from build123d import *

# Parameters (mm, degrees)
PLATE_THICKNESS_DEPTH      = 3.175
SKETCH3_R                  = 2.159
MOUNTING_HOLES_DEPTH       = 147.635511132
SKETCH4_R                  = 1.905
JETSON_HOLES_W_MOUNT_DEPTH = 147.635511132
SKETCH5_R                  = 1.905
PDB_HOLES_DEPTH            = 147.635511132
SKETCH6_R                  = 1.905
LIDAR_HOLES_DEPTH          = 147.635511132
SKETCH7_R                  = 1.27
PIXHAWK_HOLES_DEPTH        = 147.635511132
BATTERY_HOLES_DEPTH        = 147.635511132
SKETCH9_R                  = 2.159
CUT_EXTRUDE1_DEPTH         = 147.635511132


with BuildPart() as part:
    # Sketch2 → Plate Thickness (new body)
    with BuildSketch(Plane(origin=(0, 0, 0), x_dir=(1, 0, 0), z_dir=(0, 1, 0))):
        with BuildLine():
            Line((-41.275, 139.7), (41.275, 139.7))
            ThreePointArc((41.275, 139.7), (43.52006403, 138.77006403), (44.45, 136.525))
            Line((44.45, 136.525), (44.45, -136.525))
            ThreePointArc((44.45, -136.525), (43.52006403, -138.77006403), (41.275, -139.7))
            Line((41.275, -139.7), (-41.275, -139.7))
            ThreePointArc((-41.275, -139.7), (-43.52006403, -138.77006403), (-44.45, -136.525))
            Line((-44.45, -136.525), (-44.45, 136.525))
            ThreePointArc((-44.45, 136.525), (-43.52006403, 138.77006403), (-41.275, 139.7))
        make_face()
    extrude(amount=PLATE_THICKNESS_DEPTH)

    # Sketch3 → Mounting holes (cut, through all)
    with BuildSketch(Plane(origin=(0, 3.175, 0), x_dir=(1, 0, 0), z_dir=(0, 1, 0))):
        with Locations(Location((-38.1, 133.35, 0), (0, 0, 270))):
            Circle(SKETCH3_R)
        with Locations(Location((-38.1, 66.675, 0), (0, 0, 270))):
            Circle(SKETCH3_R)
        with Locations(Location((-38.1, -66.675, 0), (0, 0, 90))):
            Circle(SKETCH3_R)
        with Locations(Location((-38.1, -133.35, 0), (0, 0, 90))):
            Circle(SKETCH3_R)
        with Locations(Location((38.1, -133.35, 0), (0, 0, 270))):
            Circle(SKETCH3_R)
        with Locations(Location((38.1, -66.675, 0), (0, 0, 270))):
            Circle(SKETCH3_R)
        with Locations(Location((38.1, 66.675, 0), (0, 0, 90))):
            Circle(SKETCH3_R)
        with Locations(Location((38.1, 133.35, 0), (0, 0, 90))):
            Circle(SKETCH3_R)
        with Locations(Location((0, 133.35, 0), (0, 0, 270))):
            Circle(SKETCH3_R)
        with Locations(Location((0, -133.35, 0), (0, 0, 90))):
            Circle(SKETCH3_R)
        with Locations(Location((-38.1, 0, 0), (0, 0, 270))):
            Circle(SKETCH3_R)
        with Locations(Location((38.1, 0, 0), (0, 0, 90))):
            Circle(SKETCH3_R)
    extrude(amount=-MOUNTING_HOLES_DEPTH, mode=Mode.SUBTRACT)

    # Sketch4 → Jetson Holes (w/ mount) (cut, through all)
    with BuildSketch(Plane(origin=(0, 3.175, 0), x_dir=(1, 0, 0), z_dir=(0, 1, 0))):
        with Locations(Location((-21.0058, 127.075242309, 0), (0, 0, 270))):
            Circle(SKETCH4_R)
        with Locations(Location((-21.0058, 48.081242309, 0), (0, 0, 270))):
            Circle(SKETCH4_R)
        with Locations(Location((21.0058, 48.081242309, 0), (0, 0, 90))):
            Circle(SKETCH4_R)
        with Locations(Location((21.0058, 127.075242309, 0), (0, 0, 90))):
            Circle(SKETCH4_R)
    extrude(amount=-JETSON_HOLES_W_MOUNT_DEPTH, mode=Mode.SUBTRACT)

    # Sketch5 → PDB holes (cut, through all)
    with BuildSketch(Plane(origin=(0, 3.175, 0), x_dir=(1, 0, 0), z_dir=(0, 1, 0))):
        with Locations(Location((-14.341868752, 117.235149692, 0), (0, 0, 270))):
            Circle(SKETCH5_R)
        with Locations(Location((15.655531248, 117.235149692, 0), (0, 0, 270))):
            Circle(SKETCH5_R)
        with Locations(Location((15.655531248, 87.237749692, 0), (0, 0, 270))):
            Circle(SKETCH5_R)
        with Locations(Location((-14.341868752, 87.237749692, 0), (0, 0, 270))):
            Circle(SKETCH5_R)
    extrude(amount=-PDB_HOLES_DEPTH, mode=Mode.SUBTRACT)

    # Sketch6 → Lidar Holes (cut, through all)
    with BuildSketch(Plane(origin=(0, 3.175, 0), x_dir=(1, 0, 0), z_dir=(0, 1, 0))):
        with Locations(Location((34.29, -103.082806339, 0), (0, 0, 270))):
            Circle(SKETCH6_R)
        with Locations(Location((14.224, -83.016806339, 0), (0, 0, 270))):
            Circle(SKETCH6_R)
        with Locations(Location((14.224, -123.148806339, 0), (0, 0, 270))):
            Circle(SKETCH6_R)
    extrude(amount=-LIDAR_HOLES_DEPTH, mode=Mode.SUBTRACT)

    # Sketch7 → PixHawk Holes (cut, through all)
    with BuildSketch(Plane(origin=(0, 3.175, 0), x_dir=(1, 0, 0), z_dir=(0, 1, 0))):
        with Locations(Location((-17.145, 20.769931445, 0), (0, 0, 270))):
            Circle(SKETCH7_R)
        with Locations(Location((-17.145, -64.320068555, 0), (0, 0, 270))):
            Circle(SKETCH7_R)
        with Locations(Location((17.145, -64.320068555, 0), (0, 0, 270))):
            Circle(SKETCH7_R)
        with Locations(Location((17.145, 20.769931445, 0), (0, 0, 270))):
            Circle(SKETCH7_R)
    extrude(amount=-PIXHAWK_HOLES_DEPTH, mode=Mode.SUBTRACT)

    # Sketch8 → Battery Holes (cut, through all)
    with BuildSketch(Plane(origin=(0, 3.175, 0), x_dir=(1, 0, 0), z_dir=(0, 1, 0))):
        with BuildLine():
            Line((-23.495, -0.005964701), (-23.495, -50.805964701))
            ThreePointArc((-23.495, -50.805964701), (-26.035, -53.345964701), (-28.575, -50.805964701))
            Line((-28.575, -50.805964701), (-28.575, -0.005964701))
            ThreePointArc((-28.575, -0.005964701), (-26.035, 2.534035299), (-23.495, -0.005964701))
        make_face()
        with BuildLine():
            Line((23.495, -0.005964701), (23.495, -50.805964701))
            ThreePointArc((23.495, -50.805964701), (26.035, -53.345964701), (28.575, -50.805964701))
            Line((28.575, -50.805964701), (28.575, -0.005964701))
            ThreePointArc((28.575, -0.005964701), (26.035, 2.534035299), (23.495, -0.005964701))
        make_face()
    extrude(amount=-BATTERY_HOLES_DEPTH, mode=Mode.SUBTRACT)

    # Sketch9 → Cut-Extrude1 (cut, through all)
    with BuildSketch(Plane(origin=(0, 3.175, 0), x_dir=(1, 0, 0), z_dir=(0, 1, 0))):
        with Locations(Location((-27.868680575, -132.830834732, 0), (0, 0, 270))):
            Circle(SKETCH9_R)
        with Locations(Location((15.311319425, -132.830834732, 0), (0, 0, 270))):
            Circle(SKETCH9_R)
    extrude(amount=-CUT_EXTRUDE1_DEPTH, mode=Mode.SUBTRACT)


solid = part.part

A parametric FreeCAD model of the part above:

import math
import FreeCAD as App
import Part
import Sketcher
from FreeCAD import Vector
Q = App.Units.Quantity

doc = App.newDocument("Part")
body = doc.addObject("PartDesign::Body", "Body")

sketch1 = doc.addObject("Sketcher::SketchObject", "Sketch")
body.addObject(sketch1)
sketch1.AttachmentSupport = (doc.XZ_Plane, [""])
sketch1.MapMode = "FlatFace"
sketch1.addGeometry(Part.LineSegment(Vector(41.275, -139.7, 0), Vector(-41.275, -139.7, 0)), False)
sketch1.addGeometry(Part.ArcOfCircle(Part.Circle(Vector(-41.275, -136.525, 0), Vector(0, 0, 1), 3.175), math.radians(-180), math.radians(-90)), False)
sketch1.addGeometry(Part.LineSegment(Vector(-44.45, -136.525, 0), Vector(-44.45, 136.525, 0)), False)
sketch1.addGeometry(Part.ArcOfCircle(Part.Circle(Vector(-41.275, 136.525, 0), Vector(0, 0, 1), 3.175), math.radians(90), math.radians(180)), False)
sketch1.addGeometry(Part.LineSegment(Vector(-41.275, 139.7, 0), Vector(41.275, 139.7, 0)), False)
sketch1.addGeometry(Part.ArcOfCircle(Part.Circle(Vector(41.275, 136.525, 0), Vector(0, 0, 1), 3.175), math.radians(0), math.radians(90)), False)
sketch1.addGeometry(Part.LineSegment(Vector(44.45, 136.525, 0), Vector(44.45, -136.525, 0)), False)
sketch1.addGeometry(Part.ArcOfCircle(Part.Circle(Vector(41.275, -136.525, 0), Vector(0, 0, 1), 3.175), math.radians(-90), math.radians(0)), False)
sketch1.addConstraint(Sketcher.Constraint("Tangent", 0, 2, 1, 2))
sketch1.addConstraint(Sketcher.Constraint("Tangent", 1, 1, 2, 1))
sketch1.addConstraint(Sketcher.Constraint("Tangent", 2, 2, 3, 2))
sketch1.addConstraint(Sketcher.Constraint("Tangent", 3, 1, 4, 1))
sketch1.addConstraint(Sketcher.Constraint("Tangent", 4, 2, 5, 2))
sketch1.addConstraint(Sketcher.Constraint("Tangent", 5, 1, 6, 1))
sketch1.addConstraint(Sketcher.Constraint("Tangent", 6, 2, 7, 2))
sketch1.addConstraint(Sketcher.Constraint("Tangent", 7, 1, 0, 1))
sketch1.addConstraint(Sketcher.Constraint("Horizontal", 0))
sketch1.addConstraint(Sketcher.Constraint("Vertical", 2))
sketch1.addConstraint(Sketcher.Constraint("Horizontal", 4))
sketch1.addConstraint(Sketcher.Constraint("Vertical", 6))
sketch1.addConstraint(Sketcher.Constraint("Equal", 1, 3))
sketch1.addConstraint(Sketcher.Constraint("Equal", 3, 5))
sketch1.addConstraint(Sketcher.Constraint("Equal", 5, 7))
sketch1.addConstraint(Sketcher.Constraint("Symmetric", 1, 3, 5, 3, -1, 1))
sketch1.addConstraint(Sketcher.Constraint("Radius", 1, Q("0.125 in")))
sketch1.addConstraint(Sketcher.Constraint("DistanceX", 0, 2, 0, 1, Q("3.25 in")))
sketch1.addConstraint(Sketcher.Constraint("DistanceY", 2, 1, 2, 2, Q("10.75 in")))
pad1 = doc.addObject("PartDesign::Pad", "Pad")
body.addObject(pad1)
pad1.Profile = sketch1
pad1.Length = Q("0.125 in")
pad1.Reversed = True

sketch2 = doc.addObject("Sketcher::SketchObject", "Sketch001")
body.addObject(sketch2)
sketch2.AttachmentSupport = (doc.XZ_Plane, [""])
sketch2.MapMode = "FlatFace"
sketch2.AttachmentOffset = App.Placement(Vector(0, 0, -0.125 * 25.4), App.Rotation())
sketch2.addGeometry(Part.Circle(Vector(-38.1, -133.35, 0), Vector(0, 0, 1), 2.159), False)
sketch2.addGeometry(Part.Circle(Vector(-38.1, -66.675, 0), Vector(0, 0, 1), 2.159), False)
sketch2.addGeometry(Part.Circle(Vector(-38.1, 66.675, 0), Vector(0, 0, 1), 2.159), False)
sketch2.addGeometry(Part.Circle(Vector(-38.1, 133.35, 0), Vector(0, 0, 1), 2.159), False)
sketch2.addGeometry(Part.Circle(Vector(38.1, 133.35, 0), Vector(0, 0, 1), 2.159), False)
sketch2.addGeometry(Part.Circle(Vector(38.1, 66.675, 0), Vector(0, 0, 1), 2.159), False)
sketch2.addGeometry(Part.Circle(Vector(38.1, -66.675, 0), Vector(0, 0, 1), 2.159), False)
sketch2.addGeometry(Part.Circle(Vector(38.1, -133.35, 0), Vector(0, 0, 1), 2.159), False)
sketch2.addGeometry(Part.Circle(Vector(0, -133.35, 0), Vector(0, 0, 1), 2.159), False)
sketch2.addGeometry(Part.Circle(Vector(0, 133.35, 0), Vector(0, 0, 1), 2.159), False)
sketch2.addGeometry(Part.Circle(Vector(-38.1, 0, 0), Vector(0, 0, 1), 2.159), False)
sketch2.addGeometry(Part.Circle(Vector(38.1, 0, 0), Vector(0, 0, 1), 2.159), False)
sketch2.addConstraint(Sketcher.Constraint("Equal", 0, 1))
sketch2.addConstraint(Sketcher.Constraint("Equal", 1, 2))
sketch2.addConstraint(Sketcher.Constraint("Equal", 2, 3))
sketch2.addConstraint(Sketcher.Constraint("Equal", 3, 4))
sketch2.addConstraint(Sketcher.Constraint("Equal", 4, 5))
sketch2.addConstraint(Sketcher.Constraint("Equal", 5, 6))
sketch2.addConstraint(Sketcher.Constraint("Equal", 6, 7))
sketch2.addConstraint(Sketcher.Constraint("Equal", 7, 8))
sketch2.addConstraint(Sketcher.Constraint("Equal", 8, 9))
sketch2.addConstraint(Sketcher.Constraint("Equal", 9, 10))
sketch2.addConstraint(Sketcher.Constraint("Equal", 10, 11))
sketch2.addConstraint(Sketcher.Constraint("Symmetric", 0, 3, 4, 3, -1, 1))
sketch2.addConstraint(Sketcher.Constraint("Symmetric", 1, 3, 5, 3, -1, 1))
sketch2.addConstraint(Sketcher.Constraint("Symmetric", 2, 3, 6, 3, -1, 1))
sketch2.addConstraint(Sketcher.Constraint("Symmetric", 3, 3, 7, 3, -1, 1))
sketch2.addConstraint(Sketcher.Constraint("Symmetric", 8, 3, 9, 3, -1, 1))
sketch2.addConstraint(Sketcher.Constraint("Symmetric", 10, 3, 11, 3, -1, 1))
sketch2.addConstraint(Sketcher.Constraint("Symmetric", 3, 3, 4, 3, -2))
sketch2.addConstraint(Sketcher.Constraint("Symmetric", 2, 3, 5, 3, -2))
sketch2.addConstraint(Sketcher.Constraint("PointOnObject", 8, 3, -2))
sketch2.addConstraint(Sketcher.Constraint("PointOnObject", 10, 3, -1))
sketch2.addConstraint(Sketcher.Constraint("Horizontal", 7, 3, 8, 3))
sketch2.addConstraint(Sketcher.Constraint("Vertical", 0, 3, 1, 3))
sketch2.addConstraint(Sketcher.Constraint("Vertical", 3, 3, 10, 3))
sketch2.addConstraint(Sketcher.Constraint("Diameter", 0, Q("0.17 in")))
sketch2.addConstraint(Sketcher.Constraint("DistanceX", 3, 3, 4, 3, Q("3 in")))
sketch2.addConstraint(Sketcher.Constraint("DistanceY", 0, 3, 3, 3, Q("10.5 in")))
sketch2.addConstraint(Sketcher.Constraint("DistanceY", 1, 3, 2, 3, Q("5.25 in")))
pocket1 = doc.addObject("PartDesign::Pocket", "Pocket")
body.addObject(pocket1)
pocket1.Profile = sketch2
pocket1.Type = "ThroughAll"
pocket1.Reversed = True

sketch3 = doc.addObject("Sketcher::SketchObject", "Sketch002")
body.addObject(sketch3)
sketch3.AttachmentSupport = (doc.XZ_Plane, [""])
sketch3.MapMode = "FlatFace"
sketch3.AttachmentOffset = App.Placement(Vector(0, 0, -0.125 * 25.4), App.Rotation())
sketch3.addGeometry(Part.Circle(Vector(-21.0058, -127.075242, 0), Vector(0, 0, 1), 1.905), False)
sketch3.addGeometry(Part.Circle(Vector(-21.0058, -48.081242, 0), Vector(0, 0, 1), 1.905), False)
sketch3.addGeometry(Part.Circle(Vector(21.0058, -48.081242, 0), Vector(0, 0, 1), 1.905), False)
sketch3.addGeometry(Part.Circle(Vector(21.0058, -127.075242, 0), Vector(0, 0, 1), 1.905), False)
sketch3.addConstraint(Sketcher.Constraint("Equal", 0, 1))
sketch3.addConstraint(Sketcher.Constraint("Equal", 1, 2))
sketch3.addConstraint(Sketcher.Constraint("Equal", 2, 3))
sketch3.addConstraint(Sketcher.Constraint("Symmetric", 1, 3, 2, 3, -2))
sketch3.addConstraint(Sketcher.Constraint("Symmetric", 0, 3, 3, 3, -2))
sketch3.addConstraint(Sketcher.Constraint("Vertical", 0, 3, 1, 3))
sketch3.addConstraint(Sketcher.Constraint("Diameter", 0, Q("0.15 in")))
sketch3.addConstraint(Sketcher.Constraint("DistanceY", 0, 3, 1, 3, Q("3.11 in")))
sketch3.addConstraint(Sketcher.Constraint("DistanceX", 0, 3, -1, 1, Q("0.827 in")))
sketch3.addConstraint(Sketcher.Constraint("DistanceY", 0, 3, -1, 1, Q("127.075242 mm")))
pocket2 = doc.addObject("PartDesign::Pocket", "Pocket001")
body.addObject(pocket2)
pocket2.Profile = sketch3
pocket2.Type = "ThroughAll"
pocket2.Reversed = True

sketch4 = doc.addObject("Sketcher::SketchObject", "Sketch003")
body.addObject(sketch4)
sketch4.AttachmentSupport = (doc.XZ_Plane, [""])
sketch4.MapMode = "FlatFace"
sketch4.AttachmentOffset = App.Placement(Vector(0, 0, -0.125 * 25.4), App.Rotation())
sketch4.addGeometry(Part.Circle(Vector(-14.341869, -117.23515, 0), Vector(0, 0, 1), 1.905), False)
sketch4.addGeometry(Part.Circle(Vector(15.655531, -117.23515, 0), Vector(0, 0, 1), 1.905), False)
sketch4.addGeometry(Part.Circle(Vector(15.655531, -87.23775, 0), Vector(0, 0, 1), 1.905), False)
sketch4.addGeometry(Part.Circle(Vector(-14.341869, -87.23775, 0), Vector(0, 0, 1), 1.905), False)
sketch4.addConstraint(Sketcher.Constraint("Equal", 0, 1))
sketch4.addConstraint(Sketcher.Constraint("Equal", 1, 2))
sketch4.addConstraint(Sketcher.Constraint("Equal", 2, 3))
sketch4.addConstraint(Sketcher.Constraint("Horizontal", 0, 3, 1, 3))
sketch4.addConstraint(Sketcher.Constraint("Horizontal", 2, 3, 3, 3))
sketch4.addConstraint(Sketcher.Constraint("Vertical", 1, 3, 2, 3))
sketch4.addConstraint(Sketcher.Constraint("Vertical", 0, 3, 3, 3))
sketch4.addConstraint(Sketcher.Constraint("Diameter", 0, Q("0.15 in")))
sketch4.addConstraint(Sketcher.Constraint("DistanceX", 0, 3, 1, 3, Q("1.181 in")))
sketch4.addConstraint(Sketcher.Constraint("DistanceY", 1, 3, 2, 3, Q("1.181 in")))
sketch4.addConstraint(Sketcher.Constraint("DistanceX", 0, 3, -1, 1, Q("14.341869 mm")))
sketch4.addConstraint(Sketcher.Constraint("DistanceY", 0, 3, -1, 1, Q("117.23515 mm")))
pocket3 = doc.addObject("PartDesign::Pocket", "Pocket002")
body.addObject(pocket3)
pocket3.Profile = sketch4
pocket3.Type = "ThroughAll"
pocket3.Reversed = True

sketch5 = doc.addObject("Sketcher::SketchObject", "Sketch004")
body.addObject(sketch5)
sketch5.AttachmentSupport = (doc.XZ_Plane, [""])
sketch5.MapMode = "FlatFace"
sketch5.AttachmentOffset = App.Placement(Vector(0, 0, -0.125 * 25.4), App.Rotation())
sketch5.addGeometry(Part.Circle(Vector(34.29, 103.082806, 0), Vector(0, 0, 1), 1.905), False)
sketch5.addGeometry(Part.Circle(Vector(14.224, 83.016806, 0), Vector(0, 0, 1), 1.905), False)
sketch5.addGeometry(Part.Circle(Vector(14.224, 123.148806, 0), Vector(0, 0, 1), 1.905), False)
sketch5.addConstraint(Sketcher.Constraint("Equal", 0, 1))
sketch5.addConstraint(Sketcher.Constraint("Equal", 1, 2))
sketch5.addConstraint(Sketcher.Constraint("Vertical", 1, 3, 2, 3))
sketch5.addConstraint(Sketcher.Constraint("Diameter", 0, Q("0.15 in")))
sketch5.addConstraint(Sketcher.Constraint("DistanceX", -1, 1, 0, 3, Q("1.35 in")))
sketch5.addConstraint(Sketcher.Constraint("DistanceX", -1, 1, 1, 3, Q("0.56 in")))
sketch5.addConstraint(Sketcher.Constraint("DistanceY", 1, 3, 0, 3, Q("0.79 in")))
sketch5.addConstraint(Sketcher.Constraint("DistanceY", 0, 3, 2, 3, Q("0.79 in")))
sketch5.addConstraint(Sketcher.Constraint("DistanceY", -1, 1, 0, 3, Q("103.082806 mm")))
pocket4 = doc.addObject("PartDesign::Pocket", "Pocket003")
body.addObject(pocket4)
pocket4.Profile = sketch5
pocket4.Type = "ThroughAll"
pocket4.Reversed = True

sketch6 = doc.addObject("Sketcher::SketchObject", "Sketch005")
body.addObject(sketch6)
sketch6.AttachmentSupport = (doc.XZ_Plane, [""])
sketch6.MapMode = "FlatFace"
sketch6.AttachmentOffset = App.Placement(Vector(0, 0, -0.125 * 25.4), App.Rotation())
sketch6.addGeometry(Part.Circle(Vector(-17.145, -20.769931, 0), Vector(0, 0, 1), 1.27), False)
sketch6.addGeometry(Part.Circle(Vector(-17.145, 64.320069, 0), Vector(0, 0, 1), 1.27), False)
sketch6.addGeometry(Part.Circle(Vector(17.145, 64.320069, 0), Vector(0, 0, 1), 1.27), False)
sketch6.addGeometry(Part.Circle(Vector(17.145, -20.769931, 0), Vector(0, 0, 1), 1.27), False)
sketch6.addConstraint(Sketcher.Constraint("Equal", 0, 1))
sketch6.addConstraint(Sketcher.Constraint("Equal", 1, 2))
sketch6.addConstraint(Sketcher.Constraint("Equal", 2, 3))
sketch6.addConstraint(Sketcher.Constraint("Symmetric", 1, 3, 2, 3, -2))
sketch6.addConstraint(Sketcher.Constraint("Symmetric", 0, 3, 3, 3, -2))
sketch6.addConstraint(Sketcher.Constraint("Vertical", 0, 3, 1, 3))
sketch6.addConstraint(Sketcher.Constraint("Diameter", 0, Q("0.1 in")))
sketch6.addConstraint(Sketcher.Constraint("DistanceY", 0, 3, 1, 3, Q("3.35 in")))
sketch6.addConstraint(Sketcher.Constraint("DistanceX", 1, 3, 2, 3, Q("1.35 in")))
sketch6.addConstraint(Sketcher.Constraint("DistanceY", 0, 3, -1, 1, Q("20.769931 mm")))
pocket5 = doc.addObject("PartDesign::Pocket", "Pocket004")
body.addObject(pocket5)
pocket5.Profile = sketch6
pocket5.Type = "ThroughAll"
pocket5.Reversed = True

sketch7 = doc.addObject("Sketcher::SketchObject", "Sketch006")
body.addObject(sketch7)
sketch7.AttachmentSupport = (doc.XZ_Plane, [""])
sketch7.MapMode = "FlatFace"
sketch7.AttachmentOffset = App.Placement(Vector(0, 0, -0.125 * 25.4), App.Rotation())
sketch7.addGeometry(Part.LineSegment(Vector(-23.495, 50.805965, 0), Vector(-23.495, 0.005965, 0)), False)
sketch7.addGeometry(Part.ArcOfCircle(Part.Circle(Vector(-26.035, 0.005965, 0), Vector(0, 0, 1), 2.54), math.radians(180), math.radians(360)), False)
sketch7.addGeometry(Part.LineSegment(Vector(-28.575, 0.005965, 0), Vector(-28.575, 50.805965, 0)), False)
sketch7.addGeometry(Part.ArcOfCircle(Part.Circle(Vector(-26.035, 50.805965, 0), Vector(0, 0, 1), 2.54), math.radians(0), math.radians(180)), False)
sketch7.addGeometry(Part.LineSegment(Vector(23.495, 0.005965, 0), Vector(23.495, 50.805965, 0)), False)
sketch7.addGeometry(Part.ArcOfCircle(Part.Circle(Vector(26.035, 50.805965, 0), Vector(0, 0, 1), 2.54), math.radians(0), math.radians(180)), False)
sketch7.addGeometry(Part.LineSegment(Vector(28.575, 50.805965, 0), Vector(28.575, 0.005965, 0)), False)
sketch7.addGeometry(Part.ArcOfCircle(Part.Circle(Vector(26.035, 0.005965, 0), Vector(0, 0, 1), 2.54), math.radians(180), math.radians(360)), False)
sketch7.addConstraint(Sketcher.Constraint("Tangent", 0, 2, 1, 2))
sketch7.addConstraint(Sketcher.Constraint("Tangent", 1, 1, 2, 1))
sketch7.addConstraint(Sketcher.Constraint("Tangent", 2, 2, 3, 2))
sketch7.addConstraint(Sketcher.Constraint("Tangent", 3, 1, 0, 1))
sketch7.addConstraint(Sketcher.Constraint("Tangent", 4, 2, 5, 2))
sketch7.addConstraint(Sketcher.Constraint("Tangent", 5, 1, 6, 1))
sketch7.addConstraint(Sketcher.Constraint("Tangent", 6, 2, 7, 2))
sketch7.addConstraint(Sketcher.Constraint("Tangent", 7, 1, 4, 1))
sketch7.addConstraint(Sketcher.Constraint("Vertical", 0))
sketch7.addConstraint(Sketcher.Constraint("Vertical", 2))
sketch7.addConstraint(Sketcher.Constraint("Vertical", 4))
sketch7.addConstraint(Sketcher.Constraint("Vertical", 6))
sketch7.addConstraint(Sketcher.Constraint("Equal", 3, 5))
sketch7.addConstraint(Sketcher.Constraint("Symmetric", 3, 3, 5, 3, -2))
sketch7.addConstraint(Sketcher.Constraint("Horizontal", 1, 3, 7, 3))
sketch7.addConstraint(Sketcher.Constraint("Radius", 1, Q("0.1 in")))
sketch7.addConstraint(Sketcher.Constraint("DistanceY", 0, 2, 0, 1, Q("2 in")))
sketch7.addConstraint(Sketcher.Constraint("DistanceX", 3, 3, 5, 3, Q("2.05 in")))
sketch7.addConstraint(Sketcher.Constraint("DistanceY", -1, 1, 1, 3, Q("0.005965 mm")))
pocket6 = doc.addObject("PartDesign::Pocket", "Pocket005")
body.addObject(pocket6)
pocket6.Profile = sketch7
pocket6.Type = "ThroughAll"
pocket6.Reversed = True

sketch8 = doc.addObject("Sketcher::SketchObject", "Sketch007")
body.addObject(sketch8)
sketch8.AttachmentSupport = (doc.XZ_Plane, [""])
sketch8.MapMode = "FlatFace"
sketch8.AttachmentOffset = App.Placement(Vector(0, 0, -0.125 * 25.4), App.Rotation())
sketch8.addGeometry(Part.Circle(Vector(-27.868681, 132.830835, 0), Vector(0, 0, 1), 2.159), False)
sketch8.addGeometry(Part.Circle(Vector(15.311319, 132.830835, 0), Vector(0, 0, 1), 2.159), False)
sketch8.addConstraint(Sketcher.Constraint("Equal", 0, 1))
sketch8.addConstraint(Sketcher.Constraint("Horizontal", 0, 3, 1, 3))
sketch8.addConstraint(Sketcher.Constraint("Diameter", 0, Q("0.17 in")))
sketch8.addConstraint(Sketcher.Constraint("DistanceX", 0, 3, 1, 3, Q("1.7 in")))
sketch8.addConstraint(Sketcher.Constraint("DistanceX", 0, 3, -1, 1, Q("27.868681 mm")))
sketch8.addConstraint(Sketcher.Constraint("DistanceY", -1, 1, 0, 3, Q("132.830835 mm")))
pocket7 = doc.addObject("PartDesign::Pocket", "Pocket006")
body.addObject(pocket7)
pocket7.Profile = sketch8
pocket7.Type = "ThroughAll"
pocket7.Reversed = True

doc.recompute()
